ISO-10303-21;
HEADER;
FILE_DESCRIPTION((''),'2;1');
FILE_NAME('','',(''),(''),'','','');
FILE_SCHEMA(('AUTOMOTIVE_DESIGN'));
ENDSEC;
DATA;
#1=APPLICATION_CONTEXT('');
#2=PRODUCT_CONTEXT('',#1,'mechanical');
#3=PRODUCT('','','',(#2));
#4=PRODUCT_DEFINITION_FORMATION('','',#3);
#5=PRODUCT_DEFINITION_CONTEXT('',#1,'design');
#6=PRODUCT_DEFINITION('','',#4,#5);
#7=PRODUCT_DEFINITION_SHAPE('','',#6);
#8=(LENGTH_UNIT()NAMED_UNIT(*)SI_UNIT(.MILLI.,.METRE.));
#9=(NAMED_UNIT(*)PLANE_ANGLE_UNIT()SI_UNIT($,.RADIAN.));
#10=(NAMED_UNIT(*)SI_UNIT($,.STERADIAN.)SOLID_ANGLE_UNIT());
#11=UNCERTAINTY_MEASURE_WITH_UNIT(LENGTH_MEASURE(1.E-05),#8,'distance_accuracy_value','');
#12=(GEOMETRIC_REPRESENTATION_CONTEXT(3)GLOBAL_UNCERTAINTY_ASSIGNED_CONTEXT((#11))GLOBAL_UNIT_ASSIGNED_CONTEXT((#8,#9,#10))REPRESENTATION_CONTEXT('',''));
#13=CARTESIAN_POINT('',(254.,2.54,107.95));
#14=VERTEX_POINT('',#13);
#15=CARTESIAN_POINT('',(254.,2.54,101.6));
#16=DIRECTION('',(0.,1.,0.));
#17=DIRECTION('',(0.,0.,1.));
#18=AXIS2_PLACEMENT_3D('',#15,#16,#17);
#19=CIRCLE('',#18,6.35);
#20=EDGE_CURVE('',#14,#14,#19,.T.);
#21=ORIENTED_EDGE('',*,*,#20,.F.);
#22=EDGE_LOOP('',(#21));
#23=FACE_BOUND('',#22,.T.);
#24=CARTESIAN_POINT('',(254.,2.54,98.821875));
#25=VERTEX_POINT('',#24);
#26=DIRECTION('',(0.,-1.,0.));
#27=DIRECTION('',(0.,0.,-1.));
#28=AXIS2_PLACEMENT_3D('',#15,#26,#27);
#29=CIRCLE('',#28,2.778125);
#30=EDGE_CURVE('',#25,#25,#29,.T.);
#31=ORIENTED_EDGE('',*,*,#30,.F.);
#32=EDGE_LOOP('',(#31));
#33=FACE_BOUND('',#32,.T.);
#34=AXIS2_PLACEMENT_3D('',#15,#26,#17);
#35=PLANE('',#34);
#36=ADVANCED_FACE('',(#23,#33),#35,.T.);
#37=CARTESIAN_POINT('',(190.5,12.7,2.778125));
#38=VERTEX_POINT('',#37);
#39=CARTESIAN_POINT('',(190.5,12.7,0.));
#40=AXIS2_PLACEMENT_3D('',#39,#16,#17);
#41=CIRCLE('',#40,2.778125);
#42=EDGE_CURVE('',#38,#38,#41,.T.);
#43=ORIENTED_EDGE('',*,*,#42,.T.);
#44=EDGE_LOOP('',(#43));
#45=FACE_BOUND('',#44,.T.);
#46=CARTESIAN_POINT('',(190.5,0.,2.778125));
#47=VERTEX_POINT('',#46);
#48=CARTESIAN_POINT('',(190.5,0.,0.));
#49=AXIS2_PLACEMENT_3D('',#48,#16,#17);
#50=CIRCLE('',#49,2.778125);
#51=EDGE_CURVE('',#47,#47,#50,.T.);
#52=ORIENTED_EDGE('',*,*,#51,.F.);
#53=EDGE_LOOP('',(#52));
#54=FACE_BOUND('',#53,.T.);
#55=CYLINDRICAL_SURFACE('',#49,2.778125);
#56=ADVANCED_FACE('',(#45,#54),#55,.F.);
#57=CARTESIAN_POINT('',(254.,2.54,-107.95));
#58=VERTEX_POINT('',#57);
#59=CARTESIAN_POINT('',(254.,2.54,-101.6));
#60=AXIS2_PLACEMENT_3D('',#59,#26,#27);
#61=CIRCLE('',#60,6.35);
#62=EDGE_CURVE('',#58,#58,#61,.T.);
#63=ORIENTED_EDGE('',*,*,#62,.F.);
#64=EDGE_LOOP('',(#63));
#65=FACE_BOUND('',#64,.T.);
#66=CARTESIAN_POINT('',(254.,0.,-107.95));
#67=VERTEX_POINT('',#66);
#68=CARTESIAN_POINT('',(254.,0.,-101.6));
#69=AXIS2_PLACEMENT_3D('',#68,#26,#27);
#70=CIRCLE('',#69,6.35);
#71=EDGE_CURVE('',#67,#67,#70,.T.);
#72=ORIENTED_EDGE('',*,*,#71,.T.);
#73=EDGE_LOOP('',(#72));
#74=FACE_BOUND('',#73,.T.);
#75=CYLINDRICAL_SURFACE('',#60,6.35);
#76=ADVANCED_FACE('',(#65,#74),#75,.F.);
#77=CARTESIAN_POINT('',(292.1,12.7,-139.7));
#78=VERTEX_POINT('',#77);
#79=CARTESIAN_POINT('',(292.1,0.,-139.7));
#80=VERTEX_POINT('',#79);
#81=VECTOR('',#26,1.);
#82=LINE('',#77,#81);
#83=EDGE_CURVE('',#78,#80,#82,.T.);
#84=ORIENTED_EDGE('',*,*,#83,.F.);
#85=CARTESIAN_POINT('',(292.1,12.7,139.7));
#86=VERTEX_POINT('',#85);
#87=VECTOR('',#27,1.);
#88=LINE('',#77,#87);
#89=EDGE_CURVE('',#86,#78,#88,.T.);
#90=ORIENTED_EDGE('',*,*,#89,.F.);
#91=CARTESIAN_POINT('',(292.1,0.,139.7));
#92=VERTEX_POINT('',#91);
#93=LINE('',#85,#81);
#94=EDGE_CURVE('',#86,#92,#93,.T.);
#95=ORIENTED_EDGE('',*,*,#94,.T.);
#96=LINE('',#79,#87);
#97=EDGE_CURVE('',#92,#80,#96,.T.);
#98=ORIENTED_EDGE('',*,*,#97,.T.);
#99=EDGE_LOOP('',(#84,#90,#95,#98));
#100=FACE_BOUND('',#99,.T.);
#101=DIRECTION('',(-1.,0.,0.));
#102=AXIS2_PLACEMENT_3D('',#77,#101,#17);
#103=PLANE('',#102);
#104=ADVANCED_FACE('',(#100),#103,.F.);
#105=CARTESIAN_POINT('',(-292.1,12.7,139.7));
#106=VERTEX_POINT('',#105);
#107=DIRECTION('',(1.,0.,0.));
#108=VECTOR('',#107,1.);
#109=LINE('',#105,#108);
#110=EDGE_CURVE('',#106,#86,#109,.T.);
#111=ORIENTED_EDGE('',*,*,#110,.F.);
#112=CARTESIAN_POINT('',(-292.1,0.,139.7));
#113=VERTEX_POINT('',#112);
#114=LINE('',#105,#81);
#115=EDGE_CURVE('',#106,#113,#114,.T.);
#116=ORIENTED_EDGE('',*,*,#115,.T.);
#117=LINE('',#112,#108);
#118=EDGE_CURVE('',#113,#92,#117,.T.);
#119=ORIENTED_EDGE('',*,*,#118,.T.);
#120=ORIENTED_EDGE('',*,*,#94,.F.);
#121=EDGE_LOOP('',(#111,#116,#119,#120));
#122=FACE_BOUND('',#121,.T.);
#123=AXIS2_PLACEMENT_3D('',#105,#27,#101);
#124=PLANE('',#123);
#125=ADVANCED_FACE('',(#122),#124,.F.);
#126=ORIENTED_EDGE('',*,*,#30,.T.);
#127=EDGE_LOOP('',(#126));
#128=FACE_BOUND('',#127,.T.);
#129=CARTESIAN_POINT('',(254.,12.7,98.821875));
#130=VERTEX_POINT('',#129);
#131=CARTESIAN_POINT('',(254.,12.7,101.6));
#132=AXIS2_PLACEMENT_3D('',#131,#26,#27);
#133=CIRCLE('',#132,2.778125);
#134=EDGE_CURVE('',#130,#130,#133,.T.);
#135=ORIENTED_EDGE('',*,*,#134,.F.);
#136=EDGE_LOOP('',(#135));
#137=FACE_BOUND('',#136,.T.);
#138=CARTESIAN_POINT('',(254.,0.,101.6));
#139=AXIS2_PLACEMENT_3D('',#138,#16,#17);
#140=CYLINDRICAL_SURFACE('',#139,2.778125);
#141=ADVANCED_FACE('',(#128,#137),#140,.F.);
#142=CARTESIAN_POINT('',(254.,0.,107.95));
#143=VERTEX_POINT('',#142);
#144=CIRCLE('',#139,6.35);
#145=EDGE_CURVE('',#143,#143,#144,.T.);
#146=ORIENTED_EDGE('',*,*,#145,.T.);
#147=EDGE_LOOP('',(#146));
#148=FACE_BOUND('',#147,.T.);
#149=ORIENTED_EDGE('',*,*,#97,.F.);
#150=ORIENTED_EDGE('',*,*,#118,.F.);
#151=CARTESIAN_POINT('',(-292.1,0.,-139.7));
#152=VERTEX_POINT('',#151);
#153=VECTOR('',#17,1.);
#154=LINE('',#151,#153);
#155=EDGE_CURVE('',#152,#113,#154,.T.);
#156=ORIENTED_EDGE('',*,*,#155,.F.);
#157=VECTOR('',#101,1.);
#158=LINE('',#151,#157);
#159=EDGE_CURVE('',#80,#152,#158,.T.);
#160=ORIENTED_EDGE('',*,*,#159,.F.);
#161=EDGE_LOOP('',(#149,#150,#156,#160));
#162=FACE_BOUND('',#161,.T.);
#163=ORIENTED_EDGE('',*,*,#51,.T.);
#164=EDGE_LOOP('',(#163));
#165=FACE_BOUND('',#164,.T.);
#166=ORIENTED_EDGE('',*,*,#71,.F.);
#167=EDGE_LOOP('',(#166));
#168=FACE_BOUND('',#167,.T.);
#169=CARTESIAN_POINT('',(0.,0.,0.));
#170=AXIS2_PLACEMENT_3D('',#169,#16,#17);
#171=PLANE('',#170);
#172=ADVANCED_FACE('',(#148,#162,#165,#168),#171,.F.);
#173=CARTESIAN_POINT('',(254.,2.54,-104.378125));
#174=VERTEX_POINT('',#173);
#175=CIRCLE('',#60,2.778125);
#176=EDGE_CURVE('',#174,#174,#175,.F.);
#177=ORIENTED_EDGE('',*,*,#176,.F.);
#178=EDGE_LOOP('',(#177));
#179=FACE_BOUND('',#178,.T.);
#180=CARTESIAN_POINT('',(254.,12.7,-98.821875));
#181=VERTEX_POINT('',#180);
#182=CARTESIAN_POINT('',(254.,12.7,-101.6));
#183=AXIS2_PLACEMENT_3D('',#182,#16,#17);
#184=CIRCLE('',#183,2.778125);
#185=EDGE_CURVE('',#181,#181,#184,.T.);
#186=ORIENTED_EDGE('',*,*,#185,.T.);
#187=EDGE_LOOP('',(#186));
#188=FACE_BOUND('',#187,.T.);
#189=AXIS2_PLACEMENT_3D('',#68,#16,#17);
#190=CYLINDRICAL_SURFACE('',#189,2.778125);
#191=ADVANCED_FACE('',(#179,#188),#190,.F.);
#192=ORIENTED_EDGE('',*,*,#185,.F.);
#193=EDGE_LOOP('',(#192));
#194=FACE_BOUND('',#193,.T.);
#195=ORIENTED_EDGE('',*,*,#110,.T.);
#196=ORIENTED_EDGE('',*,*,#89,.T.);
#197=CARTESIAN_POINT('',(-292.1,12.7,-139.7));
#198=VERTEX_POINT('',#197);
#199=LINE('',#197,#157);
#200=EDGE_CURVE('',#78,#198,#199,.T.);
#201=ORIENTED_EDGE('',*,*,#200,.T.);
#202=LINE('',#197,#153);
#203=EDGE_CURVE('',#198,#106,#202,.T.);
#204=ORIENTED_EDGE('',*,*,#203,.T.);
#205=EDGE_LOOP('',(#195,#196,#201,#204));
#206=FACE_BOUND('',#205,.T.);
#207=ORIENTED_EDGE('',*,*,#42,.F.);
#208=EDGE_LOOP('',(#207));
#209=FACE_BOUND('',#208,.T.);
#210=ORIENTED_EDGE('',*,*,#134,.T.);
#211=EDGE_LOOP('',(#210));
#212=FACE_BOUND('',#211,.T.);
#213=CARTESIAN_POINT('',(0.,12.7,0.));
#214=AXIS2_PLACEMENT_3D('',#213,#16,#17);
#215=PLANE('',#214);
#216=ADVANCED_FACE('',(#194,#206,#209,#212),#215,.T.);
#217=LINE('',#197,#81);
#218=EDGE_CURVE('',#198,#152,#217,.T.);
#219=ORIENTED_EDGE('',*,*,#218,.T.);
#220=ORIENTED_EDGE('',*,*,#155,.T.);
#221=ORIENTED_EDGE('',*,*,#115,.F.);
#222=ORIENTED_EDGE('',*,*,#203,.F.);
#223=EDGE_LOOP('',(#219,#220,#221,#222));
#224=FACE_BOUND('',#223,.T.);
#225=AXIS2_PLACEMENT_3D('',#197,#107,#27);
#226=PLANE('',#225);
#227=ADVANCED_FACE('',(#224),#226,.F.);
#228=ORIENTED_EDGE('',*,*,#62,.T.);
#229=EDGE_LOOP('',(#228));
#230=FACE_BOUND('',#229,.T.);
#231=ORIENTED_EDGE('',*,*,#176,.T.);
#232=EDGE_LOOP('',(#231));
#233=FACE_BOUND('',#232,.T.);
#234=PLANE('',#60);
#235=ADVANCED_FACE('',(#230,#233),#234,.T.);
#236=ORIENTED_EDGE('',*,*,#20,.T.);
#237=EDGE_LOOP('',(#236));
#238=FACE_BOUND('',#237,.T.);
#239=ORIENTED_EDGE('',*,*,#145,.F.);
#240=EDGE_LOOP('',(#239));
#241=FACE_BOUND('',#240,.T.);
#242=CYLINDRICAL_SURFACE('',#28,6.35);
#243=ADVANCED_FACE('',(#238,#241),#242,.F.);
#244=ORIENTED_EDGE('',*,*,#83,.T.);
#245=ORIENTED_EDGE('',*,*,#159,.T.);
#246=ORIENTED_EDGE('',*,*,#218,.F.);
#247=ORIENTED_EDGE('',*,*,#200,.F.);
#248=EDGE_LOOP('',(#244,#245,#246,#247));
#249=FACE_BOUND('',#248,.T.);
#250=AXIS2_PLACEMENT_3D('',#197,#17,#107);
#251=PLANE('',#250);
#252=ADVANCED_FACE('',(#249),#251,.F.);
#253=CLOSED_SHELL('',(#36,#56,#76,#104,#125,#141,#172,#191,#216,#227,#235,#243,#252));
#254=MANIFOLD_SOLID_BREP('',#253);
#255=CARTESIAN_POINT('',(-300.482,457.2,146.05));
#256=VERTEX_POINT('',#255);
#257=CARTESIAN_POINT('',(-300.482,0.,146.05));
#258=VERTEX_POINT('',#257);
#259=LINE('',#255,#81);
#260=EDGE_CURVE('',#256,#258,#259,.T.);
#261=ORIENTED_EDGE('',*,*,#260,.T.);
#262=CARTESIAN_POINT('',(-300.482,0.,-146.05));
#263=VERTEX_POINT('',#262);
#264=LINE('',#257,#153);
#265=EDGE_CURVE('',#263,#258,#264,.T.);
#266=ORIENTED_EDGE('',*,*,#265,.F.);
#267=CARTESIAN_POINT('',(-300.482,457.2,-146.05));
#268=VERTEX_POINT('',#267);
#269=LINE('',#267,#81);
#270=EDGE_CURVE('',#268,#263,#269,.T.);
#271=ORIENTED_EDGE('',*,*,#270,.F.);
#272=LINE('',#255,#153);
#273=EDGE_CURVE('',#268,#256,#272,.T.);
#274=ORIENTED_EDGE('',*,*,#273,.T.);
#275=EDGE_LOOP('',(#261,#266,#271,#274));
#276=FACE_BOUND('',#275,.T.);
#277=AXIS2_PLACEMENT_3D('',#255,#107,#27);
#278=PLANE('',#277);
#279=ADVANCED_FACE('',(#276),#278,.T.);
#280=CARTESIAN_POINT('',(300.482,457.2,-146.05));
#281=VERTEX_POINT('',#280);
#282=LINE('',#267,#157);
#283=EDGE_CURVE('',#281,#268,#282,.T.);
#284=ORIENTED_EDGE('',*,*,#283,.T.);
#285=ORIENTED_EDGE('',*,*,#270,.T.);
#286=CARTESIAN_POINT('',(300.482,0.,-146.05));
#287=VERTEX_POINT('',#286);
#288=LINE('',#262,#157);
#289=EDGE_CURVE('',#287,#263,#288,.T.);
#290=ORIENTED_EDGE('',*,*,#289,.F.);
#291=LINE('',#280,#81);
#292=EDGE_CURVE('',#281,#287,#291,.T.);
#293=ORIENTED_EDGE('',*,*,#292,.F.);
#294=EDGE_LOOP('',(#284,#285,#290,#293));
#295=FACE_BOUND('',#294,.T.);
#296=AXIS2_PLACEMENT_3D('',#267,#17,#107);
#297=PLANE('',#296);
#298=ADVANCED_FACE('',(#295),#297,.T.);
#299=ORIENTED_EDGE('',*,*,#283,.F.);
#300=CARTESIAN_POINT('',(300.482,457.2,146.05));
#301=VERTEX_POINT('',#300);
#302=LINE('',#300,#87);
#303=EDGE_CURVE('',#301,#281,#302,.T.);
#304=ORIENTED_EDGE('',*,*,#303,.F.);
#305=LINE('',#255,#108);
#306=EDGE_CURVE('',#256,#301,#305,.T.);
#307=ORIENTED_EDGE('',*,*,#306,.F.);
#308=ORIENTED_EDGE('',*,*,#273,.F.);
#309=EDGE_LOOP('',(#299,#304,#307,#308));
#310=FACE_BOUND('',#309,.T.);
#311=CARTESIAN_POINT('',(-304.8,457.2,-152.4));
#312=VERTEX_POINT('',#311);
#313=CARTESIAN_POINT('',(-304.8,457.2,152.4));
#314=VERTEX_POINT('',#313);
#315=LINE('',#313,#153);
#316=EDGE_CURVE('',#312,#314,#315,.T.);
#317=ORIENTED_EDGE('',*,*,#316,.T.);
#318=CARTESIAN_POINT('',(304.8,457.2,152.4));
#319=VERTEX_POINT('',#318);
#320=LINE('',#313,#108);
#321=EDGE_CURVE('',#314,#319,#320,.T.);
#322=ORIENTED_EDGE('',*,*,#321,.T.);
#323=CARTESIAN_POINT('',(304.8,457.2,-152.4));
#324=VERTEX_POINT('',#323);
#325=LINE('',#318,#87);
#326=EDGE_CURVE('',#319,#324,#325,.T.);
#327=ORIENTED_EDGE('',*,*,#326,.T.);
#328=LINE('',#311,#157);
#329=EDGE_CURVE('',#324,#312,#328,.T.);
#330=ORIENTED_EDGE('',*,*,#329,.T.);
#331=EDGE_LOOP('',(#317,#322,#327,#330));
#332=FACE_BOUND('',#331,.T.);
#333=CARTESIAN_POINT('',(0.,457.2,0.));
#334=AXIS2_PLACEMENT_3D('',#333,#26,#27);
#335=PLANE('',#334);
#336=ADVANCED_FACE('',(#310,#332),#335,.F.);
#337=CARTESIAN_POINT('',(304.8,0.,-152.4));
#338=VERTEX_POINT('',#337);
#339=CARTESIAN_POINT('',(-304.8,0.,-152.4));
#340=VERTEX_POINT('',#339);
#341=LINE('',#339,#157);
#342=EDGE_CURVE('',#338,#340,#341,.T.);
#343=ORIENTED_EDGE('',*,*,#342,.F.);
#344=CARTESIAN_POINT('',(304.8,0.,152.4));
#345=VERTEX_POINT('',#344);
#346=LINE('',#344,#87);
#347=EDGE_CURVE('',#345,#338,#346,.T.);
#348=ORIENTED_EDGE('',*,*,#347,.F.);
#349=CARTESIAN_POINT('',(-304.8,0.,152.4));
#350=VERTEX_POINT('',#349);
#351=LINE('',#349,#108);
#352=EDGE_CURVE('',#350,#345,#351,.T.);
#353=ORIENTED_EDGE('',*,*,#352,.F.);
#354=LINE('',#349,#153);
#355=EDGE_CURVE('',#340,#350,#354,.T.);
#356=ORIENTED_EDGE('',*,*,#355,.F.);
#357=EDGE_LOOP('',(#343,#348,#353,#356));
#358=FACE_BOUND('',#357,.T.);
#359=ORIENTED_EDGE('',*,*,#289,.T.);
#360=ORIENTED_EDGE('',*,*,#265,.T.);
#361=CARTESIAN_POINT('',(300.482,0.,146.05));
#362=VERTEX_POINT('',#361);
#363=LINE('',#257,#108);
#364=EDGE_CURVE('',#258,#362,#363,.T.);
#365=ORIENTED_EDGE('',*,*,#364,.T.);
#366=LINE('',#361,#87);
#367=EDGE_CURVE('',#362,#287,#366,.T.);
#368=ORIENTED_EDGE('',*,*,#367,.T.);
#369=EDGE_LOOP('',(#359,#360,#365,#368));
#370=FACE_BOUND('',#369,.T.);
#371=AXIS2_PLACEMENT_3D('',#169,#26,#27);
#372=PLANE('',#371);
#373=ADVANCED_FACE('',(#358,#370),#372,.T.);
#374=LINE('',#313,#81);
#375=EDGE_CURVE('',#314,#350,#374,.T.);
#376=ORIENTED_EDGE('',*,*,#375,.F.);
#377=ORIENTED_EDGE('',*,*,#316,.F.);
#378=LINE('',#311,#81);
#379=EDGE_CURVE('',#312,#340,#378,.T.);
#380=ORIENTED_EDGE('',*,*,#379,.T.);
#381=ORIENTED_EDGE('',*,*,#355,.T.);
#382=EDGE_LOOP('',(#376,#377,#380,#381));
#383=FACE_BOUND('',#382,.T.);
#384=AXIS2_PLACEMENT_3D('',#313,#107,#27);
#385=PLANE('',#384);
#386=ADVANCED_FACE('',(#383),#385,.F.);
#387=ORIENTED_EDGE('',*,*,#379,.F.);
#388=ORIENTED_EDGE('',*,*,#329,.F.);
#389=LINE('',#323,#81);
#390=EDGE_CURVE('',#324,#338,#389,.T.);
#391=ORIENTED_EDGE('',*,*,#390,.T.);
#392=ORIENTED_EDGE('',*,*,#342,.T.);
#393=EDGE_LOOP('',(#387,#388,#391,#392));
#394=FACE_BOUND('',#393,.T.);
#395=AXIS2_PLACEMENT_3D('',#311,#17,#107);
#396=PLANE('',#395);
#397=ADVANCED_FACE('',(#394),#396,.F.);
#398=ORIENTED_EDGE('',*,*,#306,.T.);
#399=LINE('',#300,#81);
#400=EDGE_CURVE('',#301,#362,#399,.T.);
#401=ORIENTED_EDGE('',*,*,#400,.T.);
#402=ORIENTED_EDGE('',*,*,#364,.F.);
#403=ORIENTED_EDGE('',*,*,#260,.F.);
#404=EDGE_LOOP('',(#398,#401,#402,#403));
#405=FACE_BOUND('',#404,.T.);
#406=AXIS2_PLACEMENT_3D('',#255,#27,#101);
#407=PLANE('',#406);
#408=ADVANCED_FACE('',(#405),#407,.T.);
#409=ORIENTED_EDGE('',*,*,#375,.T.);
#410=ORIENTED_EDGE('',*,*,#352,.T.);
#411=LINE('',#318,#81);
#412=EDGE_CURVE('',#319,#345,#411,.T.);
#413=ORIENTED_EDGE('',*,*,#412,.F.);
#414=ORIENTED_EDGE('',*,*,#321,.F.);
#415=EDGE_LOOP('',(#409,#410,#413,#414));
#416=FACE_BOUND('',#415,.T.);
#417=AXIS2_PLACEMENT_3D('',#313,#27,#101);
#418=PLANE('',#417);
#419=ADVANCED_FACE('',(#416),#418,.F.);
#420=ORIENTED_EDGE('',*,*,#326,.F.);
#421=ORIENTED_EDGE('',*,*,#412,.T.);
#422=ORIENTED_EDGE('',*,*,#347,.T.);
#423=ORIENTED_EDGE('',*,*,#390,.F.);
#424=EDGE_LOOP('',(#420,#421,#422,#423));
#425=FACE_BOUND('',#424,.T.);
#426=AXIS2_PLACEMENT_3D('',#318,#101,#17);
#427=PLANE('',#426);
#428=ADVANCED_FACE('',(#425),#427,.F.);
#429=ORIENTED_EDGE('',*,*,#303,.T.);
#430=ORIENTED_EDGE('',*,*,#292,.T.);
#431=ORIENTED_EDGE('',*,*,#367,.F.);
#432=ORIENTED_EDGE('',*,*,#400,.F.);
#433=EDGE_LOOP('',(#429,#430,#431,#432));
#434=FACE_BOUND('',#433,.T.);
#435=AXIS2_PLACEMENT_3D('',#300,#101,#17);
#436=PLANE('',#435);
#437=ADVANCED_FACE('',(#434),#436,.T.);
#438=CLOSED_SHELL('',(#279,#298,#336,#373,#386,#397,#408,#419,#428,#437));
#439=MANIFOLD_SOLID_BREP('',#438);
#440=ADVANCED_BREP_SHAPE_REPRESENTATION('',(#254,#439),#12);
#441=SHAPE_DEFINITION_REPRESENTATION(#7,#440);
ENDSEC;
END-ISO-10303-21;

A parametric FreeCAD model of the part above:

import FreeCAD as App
import Part
import Sketcher

V = App.Vector
Q = App.Units.Quantity

doc = App.newDocument("Part")
body = doc.addObject("PartDesign::Body", "Body")

sketch1 = body.newObject("Sketcher::SketchObject", "Sketch")
sketch1.AttachmentSupport = (doc.getObject("XZ_Plane"), [""])
sketch1.MapMode = "FlatFace"
sketch1.addGeometry(Part.LineSegment(V(-292, -140, 0), V(-292, 140, 0)), False)
sketch1.addGeometry(Part.LineSegment(V(-292, 140, 0), V(292, 140, 0)), False)
sketch1.addGeometry(Part.LineSegment(V(292, 140, 0), V(292, -140, 0)), False)
sketch1.addGeometry(Part.LineSegment(V(292, -140, 0), V(-292, -140, 0)), False)
sketch1.addConstraint(Sketcher.Constraint("Coincident", 0, 2, 1, 1))
sketch1.addConstraint(Sketcher.Constraint("Coincident", 1, 2, 2, 1))
sketch1.addConstraint(Sketcher.Constraint("Coincident", 2, 2, 3, 1))
sketch1.addConstraint(Sketcher.Constraint("Coincident", 3, 2, 0, 1))
sketch1.addConstraint(Sketcher.Constraint("Vertical", 0))
sketch1.addConstraint(Sketcher.Constraint("Horizontal", 1))
sketch1.addConstraint(Sketcher.Constraint("Vertical", 2))
sketch1.addConstraint(Sketcher.Constraint("Horizontal", 3))
sketch1.addConstraint(Sketcher.Constraint("Symmetric", 0, 2, 2, 2, -1, 1))
sketch1.addConstraint(Sketcher.Constraint("DistanceX", 1, 1, 1, 2, Q("23 in")))
sketch1.addConstraint(Sketcher.Constraint("DistanceY", 0, 1, 0, 2, Q("11 in")))
pad1 = body.newObject("PartDesign::Pad", "Pad")
pad1.Profile = sketch1
pad1.Length = Q("0.5 in")
pad1.Reversed = True

sketch2 = body.newObject("Sketcher::SketchObject", "Sketch001")
sketch2.AttachmentSupport = (doc.getObject("XZ_Plane"), [""])
sketch2.MapMode = "FlatFace"
sketch2.AttachmentOffset = App.Placement(V(0, 0, -0.5 * 25.4), App.Rotation())
sketch2.addGeometry(Part.Circle(V(254, -101.6, 0), V(0, 0, 1), 2.8), False)
sketch2.addConstraint(Sketcher.Constraint("Diameter", 0, Q("0.21875 in")))
sketch2.addConstraint(Sketcher.Constraint("DistanceX", -1, 1, 0, 3, Q("10 in")))
sketch2.addConstraint(Sketcher.Constraint("DistanceY", 0, 3, -1, 1, Q("4 in")))
pocket1 = body.newObject("PartDesign::Pocket", "Pocket")
pocket1.Profile = sketch2
pocket1.Type = "ThroughAll"
pocket1.Reversed = True

sketch3 = body.newObject("Sketcher::SketchObject", "Sketch002")
sketch3.AttachmentSupport = (doc.getObject("XZ_Plane"), [""])
sketch3.MapMode = "FlatFace"
sketch3.addGeometry(Part.Circle(V(254, -102, 0), V(0, 0, 1), 6), False)
sketch3.addConstraint(Sketcher.Constraint("Diameter", 0, Q("0.5 in")))
sketch3.addConstraint(Sketcher.Constraint("DistanceX", -1, 1, 0, 3, Q("10 in")))
sketch3.addConstraint(Sketcher.Constraint("DistanceY", 0, 3, -1, 1, Q("4 in")))
pocket2 = body.newObject("PartDesign::Pocket", "Pocket001")
pocket2.Profile = sketch3
pocket2.Length = Q("0.1 in")
doc.recompute()

mirrored = body.newObject("PartDesign::Mirrored", "Mirrored")
mirrored.Originals = [pocket1, pocket2]
mirrored.MirrorPlane = (doc.getObject("XY_Plane"), [""])
body.Tip = mirrored

sketch4 = body.newObject("Sketcher::SketchObject", "Sketch003")
sketch4.AttachmentSupport = (doc.getObject("XZ_Plane"), [""])
sketch4.MapMode = "FlatFace"
sketch4.AttachmentOffset = App.Placement(V(0, 0, -0.5 * 25.4), App.Rotation())
sketch4.addGeometry(Part.Circle(V(190.5, 0, 0), V(0, 0, 1), 2.8), False)
sketch4.addConstraint(Sketcher.Constraint("PointOnObject", 0, 3, -1))
sketch4.addConstraint(Sketcher.Constraint("Diameter", 0, Q("0.21875 in")))
sketch4.addConstraint(Sketcher.Constraint("DistanceX", -1, 1, 0, 3, Q("7.5 in")))
pocket3 = body.newObject("PartDesign::Pocket", "Pocket002")
pocket3.Profile = sketch4
pocket3.Type = "ThroughAll"
pocket3.Reversed = True
body2 = doc.addObject("PartDesign::Body", "Body001")

sketch5 = body2.newObject("Sketcher::SketchObject", "Sketch004")
sketch5.AttachmentSupport = (doc.getObject("XZ_Plane001"), [""])
sketch5.MapMode = "FlatFace"
sketch5.addGeometry(Part.LineSegment(V(-305, -152, 0), V(-305, 152, 0)), False)
sketch5.addGeometry(Part.LineSegment(V(-305, 152, 0), V(305, 152, 0)), False)
sketch5.addGeometry(Part.LineSegment(V(305, 152, 0), V(305, -152, 0)), False)
sketch5.addGeometry(Part.LineSegment(V(305, -152, 0), V(-305, -152, 0)), False)
sketch5.addGeometry(Part.LineSegment(V(300, 146, 0), V(-300, 146, 0)), False)
sketch5.addGeometry(Part.LineSegment(V(-300, 146, 0), V(-300, -146, 0)), False)
sketch5.addGeometry(Part.LineSegment(V(-300, -146, 0), V(300, -146, 0)), False)
sketch5.addGeometry(Part.LineSegment(V(300, -146, 0), V(300, 146, 0)), False)
sketch5.addConstraint(Sketcher.Constraint("Coincident", 0, 2, 1, 1))
sketch5.addConstraint(Sketcher.Constraint("Coincident", 1, 2, 2, 1))
sketch5.addConstraint(Sketcher.Constraint("Coincident", 2, 2, 3, 1))
sketch5.addConstraint(Sketcher.Constraint("Coincident", 3, 2, 0, 1))
sketch5.addConstraint(Sketcher.Constraint("Coincident", 4, 2, 5, 1))
sketch5.addConstraint(Sketcher.Constraint("Coincident", 5, 2, 6, 1))
sketch5.addConstraint(Sketcher.Constraint("Coincident", 6, 2, 7, 1))
sketch5.addConstraint(Sketcher.Constraint("Coincident", 7, 2, 4, 1))
sketch5.addConstraint(Sketcher.Constraint("Vertical", 0))
sketch5.addConstraint(Sketcher.Constraint("Horizontal", 1))
sketch5.addConstraint(Sketcher.Constraint("Vertical", 2))
sketch5.addConstraint(Sketcher.Constraint("Horizontal", 3))
sketch5.addConstraint(Sketcher.Constraint("Horizontal", 4))
sketch5.addConstraint(Sketcher.Constraint("Vertical", 5))
sketch5.addConstraint(Sketcher.Constraint("Horizontal", 6))
sketch5.addConstraint(Sketcher.Constraint("Vertical", 7))
sketch5.addConstraint(Sketcher.Constraint("Symmetric", 0, 2, 2, 2, -1, 1))
sketch5.addConstraint(Sketcher.Constraint("Symmetric", 4, 2, 6, 2, -1, 1))
sketch5.addConstraint(Sketcher.Constraint("DistanceX", 1, 1, 1, 2, Q("24 in")))
sketch5.addConstraint(Sketcher.Constraint("DistanceY", 0, 1, 0, 2, Q("12 in")))
sketch5.addConstraint(Sketcher.Constraint("DistanceY", 5, 2, 5, 1, Q("11.5 in")))
sketch5.addConstraint(Sketcher.Constraint("DistanceX", 4, 2, 4, 1, Q("23.66 in")))
pad2 = body2.newObject("PartDesign::Pad", "Pad001")
pad2.Profile = sketch5
pad2.Length = Q("18 in")
pad2.Reversed = True

doc.recompute()
